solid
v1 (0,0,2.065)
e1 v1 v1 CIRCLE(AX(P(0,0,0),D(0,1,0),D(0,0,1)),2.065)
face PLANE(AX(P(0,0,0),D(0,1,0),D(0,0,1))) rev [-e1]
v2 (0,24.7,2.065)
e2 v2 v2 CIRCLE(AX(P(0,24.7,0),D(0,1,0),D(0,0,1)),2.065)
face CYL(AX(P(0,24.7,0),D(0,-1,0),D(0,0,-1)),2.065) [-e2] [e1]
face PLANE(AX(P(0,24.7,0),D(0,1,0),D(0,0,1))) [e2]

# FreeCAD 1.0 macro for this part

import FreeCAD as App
import Part
import Sketcher
from FreeCAD import Vector

doc = App.newDocument("Part")
body = doc.addObject("PartDesign::Body", "Body")

sketch1 = body.newObject("Sketcher::SketchObject", "Sketch")
sketch1.AttachmentSupport = (doc.getObject("XZ_Plane"), [""])
sketch1.MapMode = "FlatFace"
sketch1.addGeometry(Part.Circle(Vector(0, 0, 0), Vector(0, 0, 1), 2.1), False)
sketch1.addConstraint([
    Sketcher.Constraint("Coincident", 0, 3, -1, 1),
    Sketcher.Constraint("Diameter", 0, 4.13),
])
pad1 = body.newObject("PartDesign::Pad", "Pad")
pad1.Profile = sketch1
pad1.Length = 24.7
pad1.Reversed = True

doc.recompute()
